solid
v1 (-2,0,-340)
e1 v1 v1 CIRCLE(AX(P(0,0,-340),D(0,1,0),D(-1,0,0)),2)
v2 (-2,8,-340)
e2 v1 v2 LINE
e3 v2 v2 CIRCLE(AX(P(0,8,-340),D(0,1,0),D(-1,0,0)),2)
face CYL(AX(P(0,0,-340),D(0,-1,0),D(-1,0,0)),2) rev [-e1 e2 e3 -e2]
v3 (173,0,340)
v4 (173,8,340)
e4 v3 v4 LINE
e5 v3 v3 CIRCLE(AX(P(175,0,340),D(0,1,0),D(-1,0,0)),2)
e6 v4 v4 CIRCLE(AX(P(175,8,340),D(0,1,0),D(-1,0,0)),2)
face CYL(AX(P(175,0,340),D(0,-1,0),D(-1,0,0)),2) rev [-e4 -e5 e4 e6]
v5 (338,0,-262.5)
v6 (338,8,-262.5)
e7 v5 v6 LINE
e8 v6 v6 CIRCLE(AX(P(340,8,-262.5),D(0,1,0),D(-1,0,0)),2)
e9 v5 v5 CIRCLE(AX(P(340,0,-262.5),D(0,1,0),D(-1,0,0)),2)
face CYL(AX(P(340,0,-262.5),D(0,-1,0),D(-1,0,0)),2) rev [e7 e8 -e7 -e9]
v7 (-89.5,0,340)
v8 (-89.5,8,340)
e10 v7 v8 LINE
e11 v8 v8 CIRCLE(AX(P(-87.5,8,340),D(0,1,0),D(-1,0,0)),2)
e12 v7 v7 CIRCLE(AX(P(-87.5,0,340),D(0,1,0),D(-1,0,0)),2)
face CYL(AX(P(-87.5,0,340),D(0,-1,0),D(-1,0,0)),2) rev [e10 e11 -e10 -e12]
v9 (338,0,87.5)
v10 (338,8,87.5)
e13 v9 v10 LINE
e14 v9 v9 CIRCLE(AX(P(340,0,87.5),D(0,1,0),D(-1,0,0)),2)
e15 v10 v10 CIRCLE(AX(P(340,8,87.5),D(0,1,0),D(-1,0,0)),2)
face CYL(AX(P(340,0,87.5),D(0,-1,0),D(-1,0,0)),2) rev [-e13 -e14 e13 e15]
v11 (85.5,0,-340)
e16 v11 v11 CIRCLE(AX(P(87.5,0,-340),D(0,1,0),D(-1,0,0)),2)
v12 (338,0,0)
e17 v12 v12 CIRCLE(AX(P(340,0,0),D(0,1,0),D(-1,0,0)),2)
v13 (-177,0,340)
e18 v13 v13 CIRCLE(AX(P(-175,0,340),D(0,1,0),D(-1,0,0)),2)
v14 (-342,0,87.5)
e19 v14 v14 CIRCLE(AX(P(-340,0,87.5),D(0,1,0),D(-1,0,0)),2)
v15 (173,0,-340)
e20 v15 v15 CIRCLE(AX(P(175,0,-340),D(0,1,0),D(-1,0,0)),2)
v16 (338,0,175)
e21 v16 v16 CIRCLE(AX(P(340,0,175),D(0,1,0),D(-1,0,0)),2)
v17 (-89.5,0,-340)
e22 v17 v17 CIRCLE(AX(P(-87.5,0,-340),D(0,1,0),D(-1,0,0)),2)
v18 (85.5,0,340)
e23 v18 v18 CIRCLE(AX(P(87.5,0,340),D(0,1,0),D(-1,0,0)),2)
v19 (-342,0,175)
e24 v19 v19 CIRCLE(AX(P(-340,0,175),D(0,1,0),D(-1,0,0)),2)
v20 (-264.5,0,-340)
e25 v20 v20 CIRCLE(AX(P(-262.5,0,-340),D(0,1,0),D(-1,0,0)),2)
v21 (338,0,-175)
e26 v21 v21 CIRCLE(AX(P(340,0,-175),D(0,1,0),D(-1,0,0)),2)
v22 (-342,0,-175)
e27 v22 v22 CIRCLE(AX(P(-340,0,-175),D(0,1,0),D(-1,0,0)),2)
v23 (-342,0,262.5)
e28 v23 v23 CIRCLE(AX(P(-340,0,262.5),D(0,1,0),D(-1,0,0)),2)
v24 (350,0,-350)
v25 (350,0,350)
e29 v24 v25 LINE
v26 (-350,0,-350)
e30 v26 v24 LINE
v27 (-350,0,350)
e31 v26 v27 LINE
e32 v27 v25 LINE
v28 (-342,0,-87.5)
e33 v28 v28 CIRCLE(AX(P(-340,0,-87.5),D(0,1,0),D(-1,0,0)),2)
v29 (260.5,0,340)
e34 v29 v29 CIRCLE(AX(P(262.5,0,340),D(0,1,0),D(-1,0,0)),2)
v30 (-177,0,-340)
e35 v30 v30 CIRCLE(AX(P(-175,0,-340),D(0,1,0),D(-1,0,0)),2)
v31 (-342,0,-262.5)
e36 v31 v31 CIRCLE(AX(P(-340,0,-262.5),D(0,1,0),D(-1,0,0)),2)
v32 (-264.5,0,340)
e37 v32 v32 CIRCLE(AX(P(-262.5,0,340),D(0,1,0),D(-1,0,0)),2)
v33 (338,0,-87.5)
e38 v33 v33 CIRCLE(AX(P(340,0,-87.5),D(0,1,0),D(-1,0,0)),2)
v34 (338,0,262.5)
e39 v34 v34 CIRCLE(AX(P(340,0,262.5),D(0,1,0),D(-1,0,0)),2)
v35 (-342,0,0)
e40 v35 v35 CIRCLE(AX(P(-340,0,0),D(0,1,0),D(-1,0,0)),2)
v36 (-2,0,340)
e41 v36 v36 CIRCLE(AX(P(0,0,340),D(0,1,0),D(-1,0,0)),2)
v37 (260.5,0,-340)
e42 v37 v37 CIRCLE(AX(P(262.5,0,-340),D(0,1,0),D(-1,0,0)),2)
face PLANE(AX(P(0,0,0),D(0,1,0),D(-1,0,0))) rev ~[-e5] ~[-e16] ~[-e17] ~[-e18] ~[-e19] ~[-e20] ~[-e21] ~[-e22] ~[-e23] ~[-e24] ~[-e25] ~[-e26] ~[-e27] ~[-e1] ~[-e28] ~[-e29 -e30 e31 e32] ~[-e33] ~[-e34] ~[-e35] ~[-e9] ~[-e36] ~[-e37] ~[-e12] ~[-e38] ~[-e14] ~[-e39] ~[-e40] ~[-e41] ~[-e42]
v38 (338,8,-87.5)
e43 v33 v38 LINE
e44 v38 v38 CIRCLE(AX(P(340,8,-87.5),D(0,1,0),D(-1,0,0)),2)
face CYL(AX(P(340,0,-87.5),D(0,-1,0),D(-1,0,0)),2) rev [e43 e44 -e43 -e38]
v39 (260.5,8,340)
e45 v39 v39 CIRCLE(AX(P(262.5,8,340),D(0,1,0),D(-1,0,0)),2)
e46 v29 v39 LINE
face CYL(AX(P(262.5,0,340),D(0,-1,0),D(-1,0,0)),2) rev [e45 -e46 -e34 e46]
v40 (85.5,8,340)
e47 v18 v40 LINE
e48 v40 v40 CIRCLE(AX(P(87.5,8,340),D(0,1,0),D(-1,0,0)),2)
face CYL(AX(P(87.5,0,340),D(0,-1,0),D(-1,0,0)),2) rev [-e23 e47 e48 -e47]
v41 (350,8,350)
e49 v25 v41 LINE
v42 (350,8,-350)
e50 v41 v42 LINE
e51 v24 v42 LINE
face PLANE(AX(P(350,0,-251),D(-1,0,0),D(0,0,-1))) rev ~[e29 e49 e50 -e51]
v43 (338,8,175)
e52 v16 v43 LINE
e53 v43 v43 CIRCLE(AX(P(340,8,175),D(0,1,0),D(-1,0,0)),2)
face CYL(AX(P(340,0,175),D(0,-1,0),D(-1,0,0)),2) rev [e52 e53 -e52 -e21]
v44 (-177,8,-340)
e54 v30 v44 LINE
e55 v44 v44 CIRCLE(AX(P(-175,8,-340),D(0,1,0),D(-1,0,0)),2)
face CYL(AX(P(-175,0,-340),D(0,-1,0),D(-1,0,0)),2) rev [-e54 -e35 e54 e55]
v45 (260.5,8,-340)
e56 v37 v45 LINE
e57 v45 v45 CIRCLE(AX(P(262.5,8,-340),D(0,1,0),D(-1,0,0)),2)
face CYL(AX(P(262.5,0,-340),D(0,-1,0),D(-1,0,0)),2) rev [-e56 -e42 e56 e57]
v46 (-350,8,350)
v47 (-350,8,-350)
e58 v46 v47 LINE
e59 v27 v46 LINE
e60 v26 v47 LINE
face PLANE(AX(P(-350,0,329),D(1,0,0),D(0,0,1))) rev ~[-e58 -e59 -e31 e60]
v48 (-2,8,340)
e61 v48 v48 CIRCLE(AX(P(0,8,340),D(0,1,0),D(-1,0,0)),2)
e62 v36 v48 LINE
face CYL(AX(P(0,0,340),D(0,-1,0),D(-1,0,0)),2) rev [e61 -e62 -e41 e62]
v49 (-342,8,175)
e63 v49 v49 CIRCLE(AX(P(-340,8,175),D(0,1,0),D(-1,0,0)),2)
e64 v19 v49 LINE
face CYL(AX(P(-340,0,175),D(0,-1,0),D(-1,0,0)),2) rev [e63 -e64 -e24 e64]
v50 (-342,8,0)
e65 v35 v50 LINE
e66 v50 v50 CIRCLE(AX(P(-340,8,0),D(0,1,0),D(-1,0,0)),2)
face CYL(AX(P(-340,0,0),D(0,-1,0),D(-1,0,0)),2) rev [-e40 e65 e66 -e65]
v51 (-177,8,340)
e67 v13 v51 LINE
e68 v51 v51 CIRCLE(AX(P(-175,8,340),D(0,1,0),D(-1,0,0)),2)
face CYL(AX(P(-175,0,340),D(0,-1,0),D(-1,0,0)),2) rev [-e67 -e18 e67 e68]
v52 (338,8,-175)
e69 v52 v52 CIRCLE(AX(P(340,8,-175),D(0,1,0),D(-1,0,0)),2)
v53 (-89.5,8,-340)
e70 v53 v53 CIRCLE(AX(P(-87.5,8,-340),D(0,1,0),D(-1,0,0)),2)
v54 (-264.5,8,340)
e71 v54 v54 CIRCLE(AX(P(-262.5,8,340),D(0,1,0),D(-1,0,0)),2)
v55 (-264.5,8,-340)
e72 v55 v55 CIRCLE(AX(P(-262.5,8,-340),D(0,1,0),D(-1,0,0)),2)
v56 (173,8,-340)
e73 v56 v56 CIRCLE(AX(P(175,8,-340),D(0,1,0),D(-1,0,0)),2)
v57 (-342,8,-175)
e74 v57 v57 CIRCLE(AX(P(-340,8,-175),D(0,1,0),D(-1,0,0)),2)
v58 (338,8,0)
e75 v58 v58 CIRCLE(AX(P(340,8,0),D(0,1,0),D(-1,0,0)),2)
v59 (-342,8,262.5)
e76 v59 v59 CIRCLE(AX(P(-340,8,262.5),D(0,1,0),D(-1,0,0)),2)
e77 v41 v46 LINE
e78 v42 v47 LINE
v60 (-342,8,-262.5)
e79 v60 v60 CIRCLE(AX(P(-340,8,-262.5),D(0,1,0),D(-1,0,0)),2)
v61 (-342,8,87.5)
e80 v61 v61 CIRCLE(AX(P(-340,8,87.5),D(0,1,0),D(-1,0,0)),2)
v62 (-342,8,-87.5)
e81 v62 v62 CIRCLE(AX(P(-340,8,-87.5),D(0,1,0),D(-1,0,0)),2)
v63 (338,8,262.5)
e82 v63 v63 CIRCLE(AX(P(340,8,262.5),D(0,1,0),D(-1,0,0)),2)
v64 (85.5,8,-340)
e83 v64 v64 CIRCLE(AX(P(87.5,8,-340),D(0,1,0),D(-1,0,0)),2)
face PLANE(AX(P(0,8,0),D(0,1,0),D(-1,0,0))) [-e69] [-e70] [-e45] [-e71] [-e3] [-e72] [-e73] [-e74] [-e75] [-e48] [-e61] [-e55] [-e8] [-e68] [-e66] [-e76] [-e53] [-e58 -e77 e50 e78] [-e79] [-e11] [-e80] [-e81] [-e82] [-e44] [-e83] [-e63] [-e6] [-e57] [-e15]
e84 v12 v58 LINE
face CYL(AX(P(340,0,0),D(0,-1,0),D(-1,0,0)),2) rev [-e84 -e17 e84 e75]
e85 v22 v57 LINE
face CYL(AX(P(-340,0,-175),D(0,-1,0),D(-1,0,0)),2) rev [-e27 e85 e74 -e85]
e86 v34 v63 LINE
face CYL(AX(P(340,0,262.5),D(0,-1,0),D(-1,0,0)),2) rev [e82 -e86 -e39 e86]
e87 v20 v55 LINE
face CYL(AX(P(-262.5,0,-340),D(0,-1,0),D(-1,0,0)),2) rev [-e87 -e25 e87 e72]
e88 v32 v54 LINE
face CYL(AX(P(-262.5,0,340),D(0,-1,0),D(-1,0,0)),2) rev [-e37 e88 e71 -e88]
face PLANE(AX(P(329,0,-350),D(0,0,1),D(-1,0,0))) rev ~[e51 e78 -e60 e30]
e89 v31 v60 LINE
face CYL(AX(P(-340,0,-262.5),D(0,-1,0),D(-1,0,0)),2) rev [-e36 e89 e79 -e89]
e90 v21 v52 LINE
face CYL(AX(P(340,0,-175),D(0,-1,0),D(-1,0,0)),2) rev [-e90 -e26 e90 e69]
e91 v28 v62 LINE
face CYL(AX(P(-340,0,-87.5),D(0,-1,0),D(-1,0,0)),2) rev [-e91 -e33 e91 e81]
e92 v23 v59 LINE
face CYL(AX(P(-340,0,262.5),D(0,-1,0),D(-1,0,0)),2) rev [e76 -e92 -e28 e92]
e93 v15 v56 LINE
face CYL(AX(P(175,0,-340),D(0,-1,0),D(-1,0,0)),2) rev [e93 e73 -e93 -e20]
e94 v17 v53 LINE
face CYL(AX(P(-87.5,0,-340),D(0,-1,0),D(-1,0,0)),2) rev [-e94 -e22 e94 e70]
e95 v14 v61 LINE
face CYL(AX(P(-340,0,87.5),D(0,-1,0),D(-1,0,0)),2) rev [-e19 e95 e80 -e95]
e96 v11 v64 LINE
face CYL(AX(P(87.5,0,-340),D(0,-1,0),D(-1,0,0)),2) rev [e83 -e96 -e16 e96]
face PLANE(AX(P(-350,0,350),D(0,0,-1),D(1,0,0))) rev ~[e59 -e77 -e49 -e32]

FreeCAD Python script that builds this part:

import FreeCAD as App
import Part
import Sketcher


def add_polygon(sketch, points):
    """Adds a closed chain of lines whose ends are joined by coincident constraints."""
    first, n = sketch.GeometryCount, len(points)
    for a, b in zip(points, points[1:] + points[:1]):
        sketch.addGeometry(Part.LineSegment(App.Vector(*a, 0), App.Vector(*b, 0)), False)
    for i in range(n):
        sketch.addConstraint(Sketcher.Constraint("Coincident", first + i, 2, first + (i + 1) % n, 1))

doc = App.newDocument("Part")
body = doc.addObject("PartDesign::Body", "Body")

sketch1 = body.newObject("Sketcher::SketchObject", "Sketch")
sketch1.AttachmentSupport = (doc.getObject("XZ_Plane"), [""])
sketch1.MapMode = "FlatFace"
add_polygon(sketch1, [(-350, 350), (350, 350), (350, -350), (-350, -350)])
sketch1.addGeometry(Part.Circle(App.Vector(-340, 262.5, 0), App.Vector(0, 0, 1), 2), False)
sketch1.addGeometry(Part.Circle(App.Vector(-262.5, 340, 0), App.Vector(0, 0, 1), 2), False)
sketch1.addGeometry(Part.Circle(App.Vector(262.5, -340, 0), App.Vector(0, 0, 1), 2), False)
sketch1.addGeometry(Part.Circle(App.Vector(340, -262.5, 0), App.Vector(0, 0, 1), 2), False)
sketch1.addGeometry(Part.Circle(App.Vector(175, -340, 0), App.Vector(0, 0, 1), 2), False)
sketch1.addGeometry(Part.Circle(App.Vector(87.5, -340, 0), App.Vector(0, 0, 1), 2), False)
sketch1.addGeometry(Part.Circle(App.Vector(340, -175, 0), App.Vector(0, 0, 1), 2), False)
sketch1.addGeometry(Part.Circle(App.Vector(340, -87.5, 0), App.Vector(0, 0, 1), 2), False)
sketch1.addGeometry(Part.Circle(App.Vector(0, -340, 0), App.Vector(0, 0, 1), 2), False)
sketch1.addGeometry(Part.Circle(App.Vector(-87.5, -340, 0), App.Vector(0, 0, 1), 2), False)
sketch1.addGeometry(Part.Circle(App.Vector(-175, -340, 0), App.Vector(0, 0, 1), 2), False)
sketch1.addGeometry(Part.Circle(App.Vector(-262.5, -340, 0), App.Vector(0, 0, 1), 2), False)
sketch1.addGeometry(Part.Circle(App.Vector(-340, -262.5, 0), App.Vector(0, 0, 1), 2), False)
sketch1.addGeometry(Part.Circle(App.Vector(-340, -175, 0), App.Vector(0, 0, 1), 2), False)
sketch1.addGeometry(Part.Circle(App.Vector(-340, -87.5, 0), App.Vector(0, 0, 1), 2), False)
sketch1.addGeometry(Part.Circle(App.Vector(340, 0, 0), App.Vector(0, 0, 1), 2), False)
sketch1.addGeometry(Part.Circle(App.Vector(340, 87.5, 0), App.Vector(0, 0, 1), 2), False)
sketch1.addGeometry(Part.Circle(App.Vector(340, 175, 0), App.Vector(0, 0, 1), 2), False)
sketch1.addGeometry(Part.Circle(App.Vector(340, 262.5, 0), App.Vector(0, 0, 1), 2), False)
sketch1.addGeometry(Part.Circle(App.Vector(262.5, 340, 0), App.Vector(0, 0, 1), 2), False)
sketch1.addGeometry(Part.Circle(App.Vector(175, 340, 0), App.Vector(0, 0, 1), 2), False)
sketch1.addGeometry(Part.Circle(App.Vector(87.5, 340, 0), App.Vector(0, 0, 1), 2), False)
sketch1.addGeometry(Part.Circle(App.Vector(-340, 0, 0), App.Vector(0, 0, 1), 2), False)
sketch1.addGeometry(Part.Circle(App.Vector(-340, 87.5, 0), App.Vector(0, 0, 1), 2), False)
sketch1.addGeometry(Part.Circle(App.Vector(0, 340, 0), App.Vector(0, 0, 1), 2), False)
sketch1.addGeometry(Part.Circle(App.Vector(-87.5, 340, 0), App.Vector(0, 0, 1), 2), False)
sketch1.addGeometry(Part.Circle(App.Vector(-340, 175, 0), App.Vector(0, 0, 1), 2), False)
sketch1.addGeometry(Part.Circle(App.Vector(-175, 340, 0), App.Vector(0, 0, 1), 2), False)
sketch1.addConstraint([
    Sketcher.Constraint("Horizontal", 0),
    Sketcher.Constraint("Vertical", 1),
    Sketcher.Constraint("Horizontal", 2),
    Sketcher.Constraint("Vertical", 3),
    Sketcher.Constraint("Equal", 4, 5),
    Sketcher.Constraint("Equal", 5, 6),
    Sketcher.Constraint("Equal", 6, 7),
    Sketcher.Constraint("Equal", 7, 8),
    Sketcher.Constraint("Equal", 8, 9),
    Sketcher.Constraint("Equal", 9, 10),
    Sketcher.Constraint("Equal", 10, 11),
    Sketcher.Constraint("Equal", 11, 12),
    Sketcher.Constraint("Equal", 12, 13),
    Sketcher.Constraint("Equal", 13, 14),
    Sketcher.Constraint("Equal", 14, 15),
    Sketcher.Constraint("Equal", 15, 16),
    Sketcher.Constraint("Equal", 16, 17),
    Sketcher.Constraint("Equal", 17, 18),
    Sketcher.Constraint("Equal", 18, 19),
    Sketcher.Constraint("Equal", 19, 20),
    Sketcher.Constraint("Equal", 20, 21),
    Sketcher.Constraint("Equal", 21, 22),
    Sketcher.Constraint("Equal", 22, 23),
    Sketcher.Constraint("Equal", 23, 24),
    Sketcher.Constraint("Equal", 24, 25),
    Sketcher.Constraint("Equal", 25, 26),
    Sketcher.Constraint("Equal", 26, 27),
    Sketcher.Constraint("Equal", 27, 28),
    Sketcher.Constraint("Equal", 28, 29),
    Sketcher.Constraint("Equal", 29, 30),
    Sketcher.Constraint("Equal", 30, 31),
    Sketcher.Constraint("Symmetric", 5, 3, 6, 3, -1, 1),
    Sketcher.Constraint("Symmetric", 4, 3, 7, 3, -1, 1),
    Sketcher.Constraint("Symmetric", 18, 3, 20, 3, -1, 1),
    Sketcher.Constraint("Symmetric", 17, 3, 21, 3, -1, 1),
    Sketcher.Constraint("Symmetric", 16, 3, 22, 3, -1, 1),
    Sketcher.Constraint("Symmetric", 15, 3, 23, 3, -1, 1),
    Sketcher.Constraint("Symmetric", 14, 3, 24, 3, -1, 1),
    Sketcher.Constraint("Symmetric", 13, 3, 25, 3, -1, 1),
    Sketcher.Constraint("Symmetric", 19, 3, 26, 3, -1, 1),
    Sketcher.Constraint("Symmetric", 11, 3, 27, 3, -1, 1),
    Sketcher.Constraint("Symmetric", 12, 3, 28, 3, -1, 1),
    Sketcher.Constraint("Symmetric", 9, 3, 29, 3, -1, 1),
    Sketcher.Constraint("Symmetric", 10, 3, 30, 3, -1, 1),
    Sketcher.Constraint("Symmetric", 8, 3, 31, 3, -1, 1),
    Sketcher.Constraint("Symmetric", 0, 2, 2, 2, -1, 1),
    Sketcher.Constraint("Symmetric", 9, 3, 13, 3, -2),
    Sketcher.Constraint("Symmetric", 8, 3, 14, 3, -2),
    Sketcher.Constraint("Symmetric", 6, 3, 15, 3, -2),
    Sketcher.Constraint("Symmetric", 7, 3, 16, 3, -2),
    Sketcher.Constraint("Symmetric", 10, 3, 17, 3, -2),
    Sketcher.Constraint("Symmetric", 11, 3, 18, 3, -2),
    Sketcher.Constraint("PointOnObject", 12, 3, -2),
    Sketcher.Constraint("PointOnObject", 19, 3, -1),
    Sketcher.Constraint("Horizontal", 6, 3, 8, 3),
    Sketcher.Constraint("Horizontal", 8, 3, 9, 3),
    Sketcher.Constraint("Horizontal", 9, 3, 12, 3),
    Sketcher.Constraint("Vertical", 7, 3, 10, 3),
    Sketcher.Constraint("Vertical", 10, 3, 11, 3),
    Sketcher.Constraint("Vertical", 11, 3, 19, 3),
    Sketcher.Constraint("Equal", 2, 1),
    Sketcher.Constraint("Diameter", 4, 4.0),
    Sketcher.Constraint("DistanceX", 0, 1, 0, 2, 700.0),
    Sketcher.Constraint("DistanceX", -1, 1, 8, 3, 175.0),
    Sketcher.Constraint("DistanceY", 10, 3, -1, 1, 175.0),
    Sketcher.Constraint("DistanceX", 9, 3, 6, 3, 175.0),
    Sketcher.Constraint("DistanceY", 7, 3, 11, 3, 175.0),
    Sketcher.Constraint("DistanceX", 13, 3, 9, 3, 175.0),
    Sketcher.Constraint("DistanceY", 11, 3, 20, 3, 175.0),
    Sketcher.Constraint("DistanceX", 22, 3, 0, 2, 10.0),
    Sketcher.Constraint("DistanceY", 23, 3, 0, 2, 10.0),
])
pad1 = body.newObject("PartDesign::Pad", "Pad")
pad1.Profile = sketch1
pad1.Length = 8
pad1.Reversed = True

doc.recompute()
